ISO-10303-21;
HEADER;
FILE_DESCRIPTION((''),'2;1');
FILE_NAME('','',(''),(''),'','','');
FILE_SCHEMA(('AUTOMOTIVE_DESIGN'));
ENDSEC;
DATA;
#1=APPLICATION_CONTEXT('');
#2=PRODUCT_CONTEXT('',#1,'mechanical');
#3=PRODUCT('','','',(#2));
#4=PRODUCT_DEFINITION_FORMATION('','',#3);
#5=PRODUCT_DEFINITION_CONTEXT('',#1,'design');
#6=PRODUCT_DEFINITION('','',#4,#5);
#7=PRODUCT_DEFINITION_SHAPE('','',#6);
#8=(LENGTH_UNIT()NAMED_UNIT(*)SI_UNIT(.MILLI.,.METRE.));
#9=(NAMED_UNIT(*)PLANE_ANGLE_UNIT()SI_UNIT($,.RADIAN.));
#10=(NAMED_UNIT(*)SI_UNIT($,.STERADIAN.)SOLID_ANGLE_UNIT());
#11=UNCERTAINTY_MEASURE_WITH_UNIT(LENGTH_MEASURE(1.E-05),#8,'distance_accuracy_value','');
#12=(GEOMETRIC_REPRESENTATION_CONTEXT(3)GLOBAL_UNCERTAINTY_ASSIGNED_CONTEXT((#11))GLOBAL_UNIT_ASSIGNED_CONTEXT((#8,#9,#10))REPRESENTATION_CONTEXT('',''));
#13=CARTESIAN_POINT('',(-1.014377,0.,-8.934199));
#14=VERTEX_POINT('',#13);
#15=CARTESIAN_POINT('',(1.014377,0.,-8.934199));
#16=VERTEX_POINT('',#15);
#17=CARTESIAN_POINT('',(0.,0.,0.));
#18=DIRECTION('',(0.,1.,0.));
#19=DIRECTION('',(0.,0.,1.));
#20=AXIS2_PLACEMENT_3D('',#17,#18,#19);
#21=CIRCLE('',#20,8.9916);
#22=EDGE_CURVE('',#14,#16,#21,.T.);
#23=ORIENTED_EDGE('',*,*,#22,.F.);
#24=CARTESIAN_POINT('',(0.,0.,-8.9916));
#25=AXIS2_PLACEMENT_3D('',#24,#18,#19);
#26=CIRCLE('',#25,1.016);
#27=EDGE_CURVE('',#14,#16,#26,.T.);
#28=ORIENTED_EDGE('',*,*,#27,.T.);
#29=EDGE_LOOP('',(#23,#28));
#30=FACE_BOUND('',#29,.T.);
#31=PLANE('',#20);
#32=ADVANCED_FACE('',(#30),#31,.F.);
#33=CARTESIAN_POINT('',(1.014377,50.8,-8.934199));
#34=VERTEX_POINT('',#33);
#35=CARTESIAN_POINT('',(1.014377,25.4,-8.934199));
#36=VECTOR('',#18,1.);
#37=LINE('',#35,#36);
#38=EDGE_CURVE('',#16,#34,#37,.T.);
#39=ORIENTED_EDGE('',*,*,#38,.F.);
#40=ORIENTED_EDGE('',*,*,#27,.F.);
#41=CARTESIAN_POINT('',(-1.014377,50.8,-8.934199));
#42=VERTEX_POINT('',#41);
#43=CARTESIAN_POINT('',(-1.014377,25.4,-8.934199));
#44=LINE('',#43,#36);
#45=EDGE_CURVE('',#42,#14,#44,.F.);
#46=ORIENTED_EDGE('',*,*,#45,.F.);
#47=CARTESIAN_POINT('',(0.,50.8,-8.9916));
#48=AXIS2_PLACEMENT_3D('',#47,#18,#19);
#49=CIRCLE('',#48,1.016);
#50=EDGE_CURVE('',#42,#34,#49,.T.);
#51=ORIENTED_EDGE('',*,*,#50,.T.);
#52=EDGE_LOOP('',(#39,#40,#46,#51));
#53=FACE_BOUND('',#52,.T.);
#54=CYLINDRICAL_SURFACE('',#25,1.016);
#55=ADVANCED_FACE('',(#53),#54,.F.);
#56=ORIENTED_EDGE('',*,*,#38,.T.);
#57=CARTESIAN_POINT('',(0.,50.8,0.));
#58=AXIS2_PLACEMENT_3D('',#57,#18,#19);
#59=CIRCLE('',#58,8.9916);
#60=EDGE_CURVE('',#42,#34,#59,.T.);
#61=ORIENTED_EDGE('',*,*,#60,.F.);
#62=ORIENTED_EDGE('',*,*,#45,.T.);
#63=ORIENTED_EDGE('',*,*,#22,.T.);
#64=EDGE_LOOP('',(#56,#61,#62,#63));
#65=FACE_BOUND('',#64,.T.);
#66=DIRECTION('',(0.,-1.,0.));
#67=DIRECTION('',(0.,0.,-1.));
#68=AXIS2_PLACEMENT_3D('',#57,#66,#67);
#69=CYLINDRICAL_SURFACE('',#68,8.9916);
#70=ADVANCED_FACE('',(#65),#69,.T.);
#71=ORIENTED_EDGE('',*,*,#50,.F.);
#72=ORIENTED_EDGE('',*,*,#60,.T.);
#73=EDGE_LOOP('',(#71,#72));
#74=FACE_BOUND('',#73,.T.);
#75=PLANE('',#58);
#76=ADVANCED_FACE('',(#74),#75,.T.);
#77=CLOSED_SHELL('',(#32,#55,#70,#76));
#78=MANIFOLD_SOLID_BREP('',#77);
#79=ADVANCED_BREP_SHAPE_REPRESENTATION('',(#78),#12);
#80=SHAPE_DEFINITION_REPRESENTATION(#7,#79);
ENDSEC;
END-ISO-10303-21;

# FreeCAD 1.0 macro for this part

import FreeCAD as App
import Part
import Sketcher

V = App.Vector
Q = App.Units.Quantity

doc = App.newDocument("Part")
body = doc.addObject("PartDesign::Body", "Body")

# Sketch on XZ plane
sketch1 = body.newObject("Sketcher::SketchObject", "Sketch")
sketch1.AttachmentSupport = (doc.getObject("XZ_Plane"), [""])
sketch1.MapMode = "FlatFace"
sketch1.addGeometry(Part.Circle(V(0, 0, 0), V(0, 0, 1), 8.9916), False)
sketch1.addConstraint(Sketcher.Constraint("Coincident", 0, 3, -1, 1))
sketch1.addConstraint(Sketcher.Constraint("Diameter", 0, Q("0.708 in")))
pad1 = body.newObject("PartDesign::Pad", "Pad")
pad1.Profile = sketch1
pad1.Length = Q("2 in")
pad1.Reversed = True

# Sketch on XZ plane
sketch2 = body.newObject("Sketcher::SketchObject", "Sketch001")
sketch2.AttachmentSupport = (doc.getObject("XZ_Plane"), [""])
sketch2.MapMode = "FlatFace"
sketch2.AttachmentOffset = App.Placement(V(0, 0, -2 * 25.4), App.Rotation())
sketch2.addGeometry(Part.Circle(V(0, -8.9916, 0), V(0, 0, 1), 1.016), False)
sketch2.addConstraint(Sketcher.Constraint("PointOnObject", 0, 3, -2))
sketch2.addConstraint(Sketcher.Constraint("Diameter", 0, Q("0.08 in")))
sketch2.addConstraint(Sketcher.Constraint("DistanceY", 0, 3, -1, 1, Q("0.354 in")))
pocket1 = body.newObject("PartDesign::Pocket", "Pocket")
pocket1.Profile = sketch2
pocket1.Type = "ThroughAll"
pocket1.Reversed = True

doc.recompute()
